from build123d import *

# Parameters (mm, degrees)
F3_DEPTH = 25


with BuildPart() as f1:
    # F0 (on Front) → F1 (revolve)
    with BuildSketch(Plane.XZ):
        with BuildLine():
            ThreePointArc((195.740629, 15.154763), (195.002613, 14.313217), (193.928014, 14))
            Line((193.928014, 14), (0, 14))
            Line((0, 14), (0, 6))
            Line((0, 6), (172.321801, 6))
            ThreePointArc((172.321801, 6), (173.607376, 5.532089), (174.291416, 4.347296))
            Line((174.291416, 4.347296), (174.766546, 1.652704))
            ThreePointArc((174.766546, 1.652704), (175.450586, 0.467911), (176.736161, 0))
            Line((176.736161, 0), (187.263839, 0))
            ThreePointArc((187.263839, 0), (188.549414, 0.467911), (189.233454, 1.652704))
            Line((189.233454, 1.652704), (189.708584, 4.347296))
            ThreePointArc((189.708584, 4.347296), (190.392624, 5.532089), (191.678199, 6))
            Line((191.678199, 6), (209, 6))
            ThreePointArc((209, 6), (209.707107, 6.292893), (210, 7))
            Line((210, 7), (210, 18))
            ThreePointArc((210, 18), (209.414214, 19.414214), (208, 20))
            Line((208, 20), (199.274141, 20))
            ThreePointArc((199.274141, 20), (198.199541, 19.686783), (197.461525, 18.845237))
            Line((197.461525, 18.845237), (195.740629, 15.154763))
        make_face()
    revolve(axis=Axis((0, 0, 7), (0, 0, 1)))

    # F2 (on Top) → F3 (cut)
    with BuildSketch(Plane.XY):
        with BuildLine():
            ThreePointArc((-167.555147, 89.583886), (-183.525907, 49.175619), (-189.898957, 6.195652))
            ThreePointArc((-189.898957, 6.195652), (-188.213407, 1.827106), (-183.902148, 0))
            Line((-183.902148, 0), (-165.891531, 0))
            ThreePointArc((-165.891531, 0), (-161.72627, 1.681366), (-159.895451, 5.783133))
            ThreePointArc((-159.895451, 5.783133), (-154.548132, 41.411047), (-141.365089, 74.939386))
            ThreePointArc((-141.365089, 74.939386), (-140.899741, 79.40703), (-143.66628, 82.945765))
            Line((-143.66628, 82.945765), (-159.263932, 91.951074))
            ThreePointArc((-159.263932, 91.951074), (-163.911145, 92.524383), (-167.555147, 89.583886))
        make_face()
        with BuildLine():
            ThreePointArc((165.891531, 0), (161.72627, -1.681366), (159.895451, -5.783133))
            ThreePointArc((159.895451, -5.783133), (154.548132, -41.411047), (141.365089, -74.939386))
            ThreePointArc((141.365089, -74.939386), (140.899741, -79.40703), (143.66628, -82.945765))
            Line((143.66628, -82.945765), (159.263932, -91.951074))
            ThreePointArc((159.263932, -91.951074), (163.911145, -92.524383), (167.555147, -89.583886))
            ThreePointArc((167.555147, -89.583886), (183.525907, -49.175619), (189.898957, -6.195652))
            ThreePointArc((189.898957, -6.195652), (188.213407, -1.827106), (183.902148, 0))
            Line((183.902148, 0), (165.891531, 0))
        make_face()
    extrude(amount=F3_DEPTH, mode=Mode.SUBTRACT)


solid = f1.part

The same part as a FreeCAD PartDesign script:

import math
import FreeCAD as App
import Part
import Sketcher
from FreeCAD import Vector
Q = App.Units.Quantity

doc = App.newDocument("Part")
body = doc.addObject("PartDesign::Body", "Body")

sketch1 = doc.addObject("Sketcher::SketchObject", "Sketch")
body.addObject(sketch1)
sketch1.AttachmentSupport = (doc.XZ_Plane, [""])
sketch1.MapMode = "FlatFace"
sketch1.addGeometry([
    Part.ArcOfCircle(Part.Circle(Vector(193.9, 16, 0), Vector(0, 0, 1), 2), math.radians(-90), math.radians(-25)),
    Part.LineSegment(Vector(193.9, 14, 0), Vector(0, 14, 0)),
    Part.LineSegment(Vector(0, 14, 0), Vector(0, 6, 0)),
    Part.LineSegment(Vector(0, 6, 0), Vector(172.3, 6, 0)),
    Part.ArcOfCircle(Part.Circle(Vector(172.3, 4, 0), Vector(0, 0, 1), 2), math.radians(10), math.radians(90)),
    Part.LineSegment(Vector(174.3, 4.3, 0), Vector(174.8, 1.7, 0)),
    Part.ArcOfCircle(Part.Circle(Vector(176.7, 2, 0), Vector(0, 0, 1), 2), math.radians(-170), math.radians(-90)),
    Part.LineSegment(Vector(176.7, 0, 0), Vector(187.3, 0, 0)),
    Part.ArcOfCircle(Part.Circle(Vector(187.3, 2, 0), Vector(0, 0, 1), 2), math.radians(-90), math.radians(-10)),
    Part.LineSegment(Vector(189.2, 1.7, 0), Vector(189.7, 4.3, 0)),
    Part.ArcOfCircle(Part.Circle(Vector(191.7, 4, 0), Vector(0, 0, 1), 2), math.radians(90), math.radians(170)),
    Part.LineSegment(Vector(191.7, 6, 0), Vector(209, 6, 0)),
    Part.ArcOfCircle(Part.Circle(Vector(209, 7, 0), Vector(0, 0, 1), 1), math.radians(-90), math.radians(0)),
    Part.LineSegment(Vector(210, 7, 0), Vector(210, 18, 0)),
    Part.ArcOfCircle(Part.Circle(Vector(208, 18, 0), Vector(0, 0, 1), 2), math.radians(0), math.radians(90)),
    Part.LineSegment(Vector(208, 20, 0), Vector(199.3, 20, 0)),
    Part.ArcOfCircle(Part.Circle(Vector(199.3, 18, 0), Vector(0, 0, 1), 2), math.radians(90), math.radians(155)),
    Part.LineSegment(Vector(197.5, 18.8, 0), Vector(195.7, 15.2, 0)),
], False)
sketch1.addConstraint([
    Sketcher.Constraint("Tangent", 0, 1, 1, 1),
    Sketcher.Constraint("Coincident", 1, 2, 2, 1),
    Sketcher.Constraint("Coincident", 2, 2, 3, 1),
    Sketcher.Constraint("Tangent", 3, 2, 4, 2),
    Sketcher.Constraint("Tangent", 4, 1, 5, 1),
    Sketcher.Constraint("Tangent", 5, 2, 6, 1),
    Sketcher.Constraint("Tangent", 6, 2, 7, 1),
    Sketcher.Constraint("Tangent", 7, 2, 8, 1),
    Sketcher.Constraint("Tangent", 8, 2, 9, 1),
    Sketcher.Constraint("Tangent", 9, 2, 10, 2),
    Sketcher.Constraint("Tangent", 10, 1, 11, 1),
    Sketcher.Constraint("Tangent", 11, 2, 12, 1),
    Sketcher.Constraint("Tangent", 12, 2, 13, 1),
    Sketcher.Constraint("Tangent", 13, 2, 14, 1),
    Sketcher.Constraint("Tangent", 14, 2, 15, 1),
    Sketcher.Constraint("Tangent", 15, 2, 16, 1),
    Sketcher.Constraint("Tangent", 16, 2, 17, 1),
    Sketcher.Constraint("Tangent", 17, 2, 0, 2),
    Sketcher.Constraint("Horizontal", 1),
    Sketcher.Constraint("Vertical", 2),
    Sketcher.Constraint("Horizontal", 3),
    Sketcher.Constraint("Horizontal", 7),
    Sketcher.Constraint("Horizontal", 11),
    Sketcher.Constraint("Vertical", 13),
    Sketcher.Constraint("Horizontal", 15),
    Sketcher.Constraint("Equal", 0, 4),
    Sketcher.Constraint("Equal", 4, 6),
    Sketcher.Constraint("Equal", 6, 8),
    Sketcher.Constraint("Equal", 8, 10),
    Sketcher.Constraint("Equal", 10, 14),
    Sketcher.Constraint("Equal", 14, 16),
    Sketcher.Constraint("PointOnObject", 1, 2, -2),
    Sketcher.Constraint("PointOnObject", 6, 2, -1),
    Sketcher.Constraint("Horizontal", 4, 3, 10, 3),
    Sketcher.Constraint("Horizontal", 5, 2, 8, 2),
    Sketcher.Constraint("Radius", 0, 1.999999),
    Sketcher.Constraint("Radius", 12, 0.999999),
    Sketcher.Constraint("DistanceY", 2, 2, 2, 1, 8.0),
    Sketcher.Constraint("DistanceY", 13, 1, 13, 2, 11.0),
    Sketcher.Constraint("Angle", 5, Q("-79.999985 deg")),
    Sketcher.Constraint("Angle", 17, Q("-114.999996 deg")),
    Sketcher.Constraint("DistanceY", -1, 1, 0, 3, 15.999999),
    Sketcher.Constraint("DistanceX", -1, 1, 12, 3, 209.000001),
    Sketcher.Constraint("DistanceX", 3, 1, 3, 2, 172.321801),
    Sketcher.Constraint("DistanceX", 11, 1, 11, 2, 17.321801),
    Sketcher.Constraint("DistanceX", 15, 2, 15, 1, 8.725859),
])
revolution = doc.addObject("PartDesign::Revolution", "Revolution")
body.addObject(revolution)
revolution.Profile = sketch1
revolution.ReferenceAxis = (sketch1, ["V_Axis"])
revolution.Angle = 360

sketch2 = doc.addObject("Sketcher::SketchObject", "Sketch001")
body.addObject(sketch2)
sketch2.AttachmentSupport = (doc.XY_Plane, [""])
sketch2.MapMode = "FlatFace"
sketch2.addGeometry([
    Part.ArcOfCircle(Part.Circle(Vector(0, 0, 0), Vector(0, 0, 1), 190), math.radians(152), math.radians(178)),
    Part.ArcOfCircle(Part.Circle(Vector(-184, 6, 0), Vector(0, 0, 1), 6), math.radians(178), math.radians(270)),
    Part.LineSegment(Vector(-184, 0, 0), Vector(-166, 0, 0)),
    Part.ArcOfCircle(Part.Circle(Vector(-166, 6, 0), Vector(0, 0, 1), 6), math.radians(-90), math.radians(-2)),
    Part.ArcOfCircle(Part.Circle(Vector(0, 0, 0), Vector(0, 0, 1), 160), math.radians(152), math.radians(178)),
    Part.ArcOfCircle(Part.Circle(Vector(-147, 78, 0), Vector(0, 0, 1), 6), math.radians(-28), math.radians(60)),
    Part.LineSegment(Vector(-144, 83, 0), Vector(-159, 92, 0)),
    Part.ArcOfCircle(Part.Circle(Vector(-162, 87, 0), Vector(0, 0, 1), 6), math.radians(60), math.radians(152)),
    Part.ArcOfCircle(Part.Circle(Vector(166, -6, 0), Vector(0, 0, 1), 6), math.radians(90), math.radians(178)),
    Part.ArcOfCircle(Part.Circle(Vector(0, 0, 0), Vector(0, 0, 1), 160), math.radians(-28), math.radians(-2)),
    Part.ArcOfCircle(Part.Circle(Vector(147, -78, 0), Vector(0, 0, 1), 6), math.radians(152), math.radians(240)),
    Part.LineSegment(Vector(144, -83, 0), Vector(159, -92, 0)),
    Part.ArcOfCircle(Part.Circle(Vector(162, -87, 0), Vector(0, 0, 1), 6), math.radians(-120), math.radians(-28)),
    Part.ArcOfCircle(Part.Circle(Vector(0, 0, 0), Vector(0, 0, 1), 190), math.radians(-28), math.radians(-2)),
    Part.ArcOfCircle(Part.Circle(Vector(184, -6, 0), Vector(0, 0, 1), 6), math.radians(-2), math.radians(90)),
    Part.LineSegment(Vector(184, 0, 0), Vector(166, 0, 0)),
], False)
sketch2.addConstraint([
    Sketcher.Constraint("Tangent", 0, 2, 1, 1),
    Sketcher.Constraint("Tangent", 1, 2, 2, 1),
    Sketcher.Constraint("Tangent", 2, 2, 3, 1),
    Sketcher.Constraint("Tangent", 3, 2, 4, 2),
    Sketcher.Constraint("Tangent", 4, 1, 5, 1),
    Sketcher.Constraint("Tangent", 5, 2, 6, 1),
    Sketcher.Constraint("Tangent", 6, 2, 7, 1),
    Sketcher.Constraint("Tangent", 7, 2, 0, 1),
    Sketcher.Constraint("Tangent", 8, 2, 9, 2),
    Sketcher.Constraint("Tangent", 9, 1, 10, 1),
    Sketcher.Constraint("Tangent", 10, 2, 11, 1),
    Sketcher.Constraint("Tangent", 11, 2, 12, 1),
    Sketcher.Constraint("Tangent", 12, 2, 13, 1),
    Sketcher.Constraint("Tangent", 13, 2, 14, 1),
    Sketcher.Constraint("Tangent", 14, 2, 15, 1),
    Sketcher.Constraint("Tangent", 15, 2, 8, 1),
    Sketcher.Constraint("Horizontal", 2),
    Sketcher.Constraint("Horizontal", 15),
    Sketcher.Constraint("Coincident", 0, 3, -1, 1),
    Sketcher.Constraint("Coincident", 4, 3, -1, 1),
    Sketcher.Constraint("Coincident", 9, 3, -1, 1),
    Sketcher.Constraint("Coincident", 13, 3, -1, 1),
    Sketcher.Constraint("Equal", 1, 3),
    Sketcher.Constraint("Equal", 1, 5),
    Sketcher.Constraint("Equal", 5, 7),
    Sketcher.Constraint("Equal", 7, 8),
    Sketcher.Constraint("Equal", 4, 9),
    Sketcher.Constraint("Equal", 7, 10),
    Sketcher.Constraint("Equal", 10, 12),
    Sketcher.Constraint("Equal", 0, 13),
    Sketcher.Constraint("Equal", 12, 14),
    Sketcher.Constraint("Symmetric", 5, 2, 10, 2, -1, 1),
    Sketcher.Constraint("Symmetric", 1, 2, 14, 2, -2),
    Sketcher.Constraint("Radius", 1, 6.0),
    Sketcher.Constraint("Radius", 4, 160.0),
    Sketcher.Constraint("Angle", 6, Q("149.999999 deg")),
    Sketcher.Constraint("Radius", 0, 189.99999),
    Sketcher.Constraint("DistanceX", 3, 3, 7, 3, 3.6276),
])
pocket1 = doc.addObject("PartDesign::Pocket", "Pocket")
body.addObject(pocket1)
pocket1.Profile = sketch2
pocket1.Length = 25
pocket1.Reversed = True

doc.recompute()
